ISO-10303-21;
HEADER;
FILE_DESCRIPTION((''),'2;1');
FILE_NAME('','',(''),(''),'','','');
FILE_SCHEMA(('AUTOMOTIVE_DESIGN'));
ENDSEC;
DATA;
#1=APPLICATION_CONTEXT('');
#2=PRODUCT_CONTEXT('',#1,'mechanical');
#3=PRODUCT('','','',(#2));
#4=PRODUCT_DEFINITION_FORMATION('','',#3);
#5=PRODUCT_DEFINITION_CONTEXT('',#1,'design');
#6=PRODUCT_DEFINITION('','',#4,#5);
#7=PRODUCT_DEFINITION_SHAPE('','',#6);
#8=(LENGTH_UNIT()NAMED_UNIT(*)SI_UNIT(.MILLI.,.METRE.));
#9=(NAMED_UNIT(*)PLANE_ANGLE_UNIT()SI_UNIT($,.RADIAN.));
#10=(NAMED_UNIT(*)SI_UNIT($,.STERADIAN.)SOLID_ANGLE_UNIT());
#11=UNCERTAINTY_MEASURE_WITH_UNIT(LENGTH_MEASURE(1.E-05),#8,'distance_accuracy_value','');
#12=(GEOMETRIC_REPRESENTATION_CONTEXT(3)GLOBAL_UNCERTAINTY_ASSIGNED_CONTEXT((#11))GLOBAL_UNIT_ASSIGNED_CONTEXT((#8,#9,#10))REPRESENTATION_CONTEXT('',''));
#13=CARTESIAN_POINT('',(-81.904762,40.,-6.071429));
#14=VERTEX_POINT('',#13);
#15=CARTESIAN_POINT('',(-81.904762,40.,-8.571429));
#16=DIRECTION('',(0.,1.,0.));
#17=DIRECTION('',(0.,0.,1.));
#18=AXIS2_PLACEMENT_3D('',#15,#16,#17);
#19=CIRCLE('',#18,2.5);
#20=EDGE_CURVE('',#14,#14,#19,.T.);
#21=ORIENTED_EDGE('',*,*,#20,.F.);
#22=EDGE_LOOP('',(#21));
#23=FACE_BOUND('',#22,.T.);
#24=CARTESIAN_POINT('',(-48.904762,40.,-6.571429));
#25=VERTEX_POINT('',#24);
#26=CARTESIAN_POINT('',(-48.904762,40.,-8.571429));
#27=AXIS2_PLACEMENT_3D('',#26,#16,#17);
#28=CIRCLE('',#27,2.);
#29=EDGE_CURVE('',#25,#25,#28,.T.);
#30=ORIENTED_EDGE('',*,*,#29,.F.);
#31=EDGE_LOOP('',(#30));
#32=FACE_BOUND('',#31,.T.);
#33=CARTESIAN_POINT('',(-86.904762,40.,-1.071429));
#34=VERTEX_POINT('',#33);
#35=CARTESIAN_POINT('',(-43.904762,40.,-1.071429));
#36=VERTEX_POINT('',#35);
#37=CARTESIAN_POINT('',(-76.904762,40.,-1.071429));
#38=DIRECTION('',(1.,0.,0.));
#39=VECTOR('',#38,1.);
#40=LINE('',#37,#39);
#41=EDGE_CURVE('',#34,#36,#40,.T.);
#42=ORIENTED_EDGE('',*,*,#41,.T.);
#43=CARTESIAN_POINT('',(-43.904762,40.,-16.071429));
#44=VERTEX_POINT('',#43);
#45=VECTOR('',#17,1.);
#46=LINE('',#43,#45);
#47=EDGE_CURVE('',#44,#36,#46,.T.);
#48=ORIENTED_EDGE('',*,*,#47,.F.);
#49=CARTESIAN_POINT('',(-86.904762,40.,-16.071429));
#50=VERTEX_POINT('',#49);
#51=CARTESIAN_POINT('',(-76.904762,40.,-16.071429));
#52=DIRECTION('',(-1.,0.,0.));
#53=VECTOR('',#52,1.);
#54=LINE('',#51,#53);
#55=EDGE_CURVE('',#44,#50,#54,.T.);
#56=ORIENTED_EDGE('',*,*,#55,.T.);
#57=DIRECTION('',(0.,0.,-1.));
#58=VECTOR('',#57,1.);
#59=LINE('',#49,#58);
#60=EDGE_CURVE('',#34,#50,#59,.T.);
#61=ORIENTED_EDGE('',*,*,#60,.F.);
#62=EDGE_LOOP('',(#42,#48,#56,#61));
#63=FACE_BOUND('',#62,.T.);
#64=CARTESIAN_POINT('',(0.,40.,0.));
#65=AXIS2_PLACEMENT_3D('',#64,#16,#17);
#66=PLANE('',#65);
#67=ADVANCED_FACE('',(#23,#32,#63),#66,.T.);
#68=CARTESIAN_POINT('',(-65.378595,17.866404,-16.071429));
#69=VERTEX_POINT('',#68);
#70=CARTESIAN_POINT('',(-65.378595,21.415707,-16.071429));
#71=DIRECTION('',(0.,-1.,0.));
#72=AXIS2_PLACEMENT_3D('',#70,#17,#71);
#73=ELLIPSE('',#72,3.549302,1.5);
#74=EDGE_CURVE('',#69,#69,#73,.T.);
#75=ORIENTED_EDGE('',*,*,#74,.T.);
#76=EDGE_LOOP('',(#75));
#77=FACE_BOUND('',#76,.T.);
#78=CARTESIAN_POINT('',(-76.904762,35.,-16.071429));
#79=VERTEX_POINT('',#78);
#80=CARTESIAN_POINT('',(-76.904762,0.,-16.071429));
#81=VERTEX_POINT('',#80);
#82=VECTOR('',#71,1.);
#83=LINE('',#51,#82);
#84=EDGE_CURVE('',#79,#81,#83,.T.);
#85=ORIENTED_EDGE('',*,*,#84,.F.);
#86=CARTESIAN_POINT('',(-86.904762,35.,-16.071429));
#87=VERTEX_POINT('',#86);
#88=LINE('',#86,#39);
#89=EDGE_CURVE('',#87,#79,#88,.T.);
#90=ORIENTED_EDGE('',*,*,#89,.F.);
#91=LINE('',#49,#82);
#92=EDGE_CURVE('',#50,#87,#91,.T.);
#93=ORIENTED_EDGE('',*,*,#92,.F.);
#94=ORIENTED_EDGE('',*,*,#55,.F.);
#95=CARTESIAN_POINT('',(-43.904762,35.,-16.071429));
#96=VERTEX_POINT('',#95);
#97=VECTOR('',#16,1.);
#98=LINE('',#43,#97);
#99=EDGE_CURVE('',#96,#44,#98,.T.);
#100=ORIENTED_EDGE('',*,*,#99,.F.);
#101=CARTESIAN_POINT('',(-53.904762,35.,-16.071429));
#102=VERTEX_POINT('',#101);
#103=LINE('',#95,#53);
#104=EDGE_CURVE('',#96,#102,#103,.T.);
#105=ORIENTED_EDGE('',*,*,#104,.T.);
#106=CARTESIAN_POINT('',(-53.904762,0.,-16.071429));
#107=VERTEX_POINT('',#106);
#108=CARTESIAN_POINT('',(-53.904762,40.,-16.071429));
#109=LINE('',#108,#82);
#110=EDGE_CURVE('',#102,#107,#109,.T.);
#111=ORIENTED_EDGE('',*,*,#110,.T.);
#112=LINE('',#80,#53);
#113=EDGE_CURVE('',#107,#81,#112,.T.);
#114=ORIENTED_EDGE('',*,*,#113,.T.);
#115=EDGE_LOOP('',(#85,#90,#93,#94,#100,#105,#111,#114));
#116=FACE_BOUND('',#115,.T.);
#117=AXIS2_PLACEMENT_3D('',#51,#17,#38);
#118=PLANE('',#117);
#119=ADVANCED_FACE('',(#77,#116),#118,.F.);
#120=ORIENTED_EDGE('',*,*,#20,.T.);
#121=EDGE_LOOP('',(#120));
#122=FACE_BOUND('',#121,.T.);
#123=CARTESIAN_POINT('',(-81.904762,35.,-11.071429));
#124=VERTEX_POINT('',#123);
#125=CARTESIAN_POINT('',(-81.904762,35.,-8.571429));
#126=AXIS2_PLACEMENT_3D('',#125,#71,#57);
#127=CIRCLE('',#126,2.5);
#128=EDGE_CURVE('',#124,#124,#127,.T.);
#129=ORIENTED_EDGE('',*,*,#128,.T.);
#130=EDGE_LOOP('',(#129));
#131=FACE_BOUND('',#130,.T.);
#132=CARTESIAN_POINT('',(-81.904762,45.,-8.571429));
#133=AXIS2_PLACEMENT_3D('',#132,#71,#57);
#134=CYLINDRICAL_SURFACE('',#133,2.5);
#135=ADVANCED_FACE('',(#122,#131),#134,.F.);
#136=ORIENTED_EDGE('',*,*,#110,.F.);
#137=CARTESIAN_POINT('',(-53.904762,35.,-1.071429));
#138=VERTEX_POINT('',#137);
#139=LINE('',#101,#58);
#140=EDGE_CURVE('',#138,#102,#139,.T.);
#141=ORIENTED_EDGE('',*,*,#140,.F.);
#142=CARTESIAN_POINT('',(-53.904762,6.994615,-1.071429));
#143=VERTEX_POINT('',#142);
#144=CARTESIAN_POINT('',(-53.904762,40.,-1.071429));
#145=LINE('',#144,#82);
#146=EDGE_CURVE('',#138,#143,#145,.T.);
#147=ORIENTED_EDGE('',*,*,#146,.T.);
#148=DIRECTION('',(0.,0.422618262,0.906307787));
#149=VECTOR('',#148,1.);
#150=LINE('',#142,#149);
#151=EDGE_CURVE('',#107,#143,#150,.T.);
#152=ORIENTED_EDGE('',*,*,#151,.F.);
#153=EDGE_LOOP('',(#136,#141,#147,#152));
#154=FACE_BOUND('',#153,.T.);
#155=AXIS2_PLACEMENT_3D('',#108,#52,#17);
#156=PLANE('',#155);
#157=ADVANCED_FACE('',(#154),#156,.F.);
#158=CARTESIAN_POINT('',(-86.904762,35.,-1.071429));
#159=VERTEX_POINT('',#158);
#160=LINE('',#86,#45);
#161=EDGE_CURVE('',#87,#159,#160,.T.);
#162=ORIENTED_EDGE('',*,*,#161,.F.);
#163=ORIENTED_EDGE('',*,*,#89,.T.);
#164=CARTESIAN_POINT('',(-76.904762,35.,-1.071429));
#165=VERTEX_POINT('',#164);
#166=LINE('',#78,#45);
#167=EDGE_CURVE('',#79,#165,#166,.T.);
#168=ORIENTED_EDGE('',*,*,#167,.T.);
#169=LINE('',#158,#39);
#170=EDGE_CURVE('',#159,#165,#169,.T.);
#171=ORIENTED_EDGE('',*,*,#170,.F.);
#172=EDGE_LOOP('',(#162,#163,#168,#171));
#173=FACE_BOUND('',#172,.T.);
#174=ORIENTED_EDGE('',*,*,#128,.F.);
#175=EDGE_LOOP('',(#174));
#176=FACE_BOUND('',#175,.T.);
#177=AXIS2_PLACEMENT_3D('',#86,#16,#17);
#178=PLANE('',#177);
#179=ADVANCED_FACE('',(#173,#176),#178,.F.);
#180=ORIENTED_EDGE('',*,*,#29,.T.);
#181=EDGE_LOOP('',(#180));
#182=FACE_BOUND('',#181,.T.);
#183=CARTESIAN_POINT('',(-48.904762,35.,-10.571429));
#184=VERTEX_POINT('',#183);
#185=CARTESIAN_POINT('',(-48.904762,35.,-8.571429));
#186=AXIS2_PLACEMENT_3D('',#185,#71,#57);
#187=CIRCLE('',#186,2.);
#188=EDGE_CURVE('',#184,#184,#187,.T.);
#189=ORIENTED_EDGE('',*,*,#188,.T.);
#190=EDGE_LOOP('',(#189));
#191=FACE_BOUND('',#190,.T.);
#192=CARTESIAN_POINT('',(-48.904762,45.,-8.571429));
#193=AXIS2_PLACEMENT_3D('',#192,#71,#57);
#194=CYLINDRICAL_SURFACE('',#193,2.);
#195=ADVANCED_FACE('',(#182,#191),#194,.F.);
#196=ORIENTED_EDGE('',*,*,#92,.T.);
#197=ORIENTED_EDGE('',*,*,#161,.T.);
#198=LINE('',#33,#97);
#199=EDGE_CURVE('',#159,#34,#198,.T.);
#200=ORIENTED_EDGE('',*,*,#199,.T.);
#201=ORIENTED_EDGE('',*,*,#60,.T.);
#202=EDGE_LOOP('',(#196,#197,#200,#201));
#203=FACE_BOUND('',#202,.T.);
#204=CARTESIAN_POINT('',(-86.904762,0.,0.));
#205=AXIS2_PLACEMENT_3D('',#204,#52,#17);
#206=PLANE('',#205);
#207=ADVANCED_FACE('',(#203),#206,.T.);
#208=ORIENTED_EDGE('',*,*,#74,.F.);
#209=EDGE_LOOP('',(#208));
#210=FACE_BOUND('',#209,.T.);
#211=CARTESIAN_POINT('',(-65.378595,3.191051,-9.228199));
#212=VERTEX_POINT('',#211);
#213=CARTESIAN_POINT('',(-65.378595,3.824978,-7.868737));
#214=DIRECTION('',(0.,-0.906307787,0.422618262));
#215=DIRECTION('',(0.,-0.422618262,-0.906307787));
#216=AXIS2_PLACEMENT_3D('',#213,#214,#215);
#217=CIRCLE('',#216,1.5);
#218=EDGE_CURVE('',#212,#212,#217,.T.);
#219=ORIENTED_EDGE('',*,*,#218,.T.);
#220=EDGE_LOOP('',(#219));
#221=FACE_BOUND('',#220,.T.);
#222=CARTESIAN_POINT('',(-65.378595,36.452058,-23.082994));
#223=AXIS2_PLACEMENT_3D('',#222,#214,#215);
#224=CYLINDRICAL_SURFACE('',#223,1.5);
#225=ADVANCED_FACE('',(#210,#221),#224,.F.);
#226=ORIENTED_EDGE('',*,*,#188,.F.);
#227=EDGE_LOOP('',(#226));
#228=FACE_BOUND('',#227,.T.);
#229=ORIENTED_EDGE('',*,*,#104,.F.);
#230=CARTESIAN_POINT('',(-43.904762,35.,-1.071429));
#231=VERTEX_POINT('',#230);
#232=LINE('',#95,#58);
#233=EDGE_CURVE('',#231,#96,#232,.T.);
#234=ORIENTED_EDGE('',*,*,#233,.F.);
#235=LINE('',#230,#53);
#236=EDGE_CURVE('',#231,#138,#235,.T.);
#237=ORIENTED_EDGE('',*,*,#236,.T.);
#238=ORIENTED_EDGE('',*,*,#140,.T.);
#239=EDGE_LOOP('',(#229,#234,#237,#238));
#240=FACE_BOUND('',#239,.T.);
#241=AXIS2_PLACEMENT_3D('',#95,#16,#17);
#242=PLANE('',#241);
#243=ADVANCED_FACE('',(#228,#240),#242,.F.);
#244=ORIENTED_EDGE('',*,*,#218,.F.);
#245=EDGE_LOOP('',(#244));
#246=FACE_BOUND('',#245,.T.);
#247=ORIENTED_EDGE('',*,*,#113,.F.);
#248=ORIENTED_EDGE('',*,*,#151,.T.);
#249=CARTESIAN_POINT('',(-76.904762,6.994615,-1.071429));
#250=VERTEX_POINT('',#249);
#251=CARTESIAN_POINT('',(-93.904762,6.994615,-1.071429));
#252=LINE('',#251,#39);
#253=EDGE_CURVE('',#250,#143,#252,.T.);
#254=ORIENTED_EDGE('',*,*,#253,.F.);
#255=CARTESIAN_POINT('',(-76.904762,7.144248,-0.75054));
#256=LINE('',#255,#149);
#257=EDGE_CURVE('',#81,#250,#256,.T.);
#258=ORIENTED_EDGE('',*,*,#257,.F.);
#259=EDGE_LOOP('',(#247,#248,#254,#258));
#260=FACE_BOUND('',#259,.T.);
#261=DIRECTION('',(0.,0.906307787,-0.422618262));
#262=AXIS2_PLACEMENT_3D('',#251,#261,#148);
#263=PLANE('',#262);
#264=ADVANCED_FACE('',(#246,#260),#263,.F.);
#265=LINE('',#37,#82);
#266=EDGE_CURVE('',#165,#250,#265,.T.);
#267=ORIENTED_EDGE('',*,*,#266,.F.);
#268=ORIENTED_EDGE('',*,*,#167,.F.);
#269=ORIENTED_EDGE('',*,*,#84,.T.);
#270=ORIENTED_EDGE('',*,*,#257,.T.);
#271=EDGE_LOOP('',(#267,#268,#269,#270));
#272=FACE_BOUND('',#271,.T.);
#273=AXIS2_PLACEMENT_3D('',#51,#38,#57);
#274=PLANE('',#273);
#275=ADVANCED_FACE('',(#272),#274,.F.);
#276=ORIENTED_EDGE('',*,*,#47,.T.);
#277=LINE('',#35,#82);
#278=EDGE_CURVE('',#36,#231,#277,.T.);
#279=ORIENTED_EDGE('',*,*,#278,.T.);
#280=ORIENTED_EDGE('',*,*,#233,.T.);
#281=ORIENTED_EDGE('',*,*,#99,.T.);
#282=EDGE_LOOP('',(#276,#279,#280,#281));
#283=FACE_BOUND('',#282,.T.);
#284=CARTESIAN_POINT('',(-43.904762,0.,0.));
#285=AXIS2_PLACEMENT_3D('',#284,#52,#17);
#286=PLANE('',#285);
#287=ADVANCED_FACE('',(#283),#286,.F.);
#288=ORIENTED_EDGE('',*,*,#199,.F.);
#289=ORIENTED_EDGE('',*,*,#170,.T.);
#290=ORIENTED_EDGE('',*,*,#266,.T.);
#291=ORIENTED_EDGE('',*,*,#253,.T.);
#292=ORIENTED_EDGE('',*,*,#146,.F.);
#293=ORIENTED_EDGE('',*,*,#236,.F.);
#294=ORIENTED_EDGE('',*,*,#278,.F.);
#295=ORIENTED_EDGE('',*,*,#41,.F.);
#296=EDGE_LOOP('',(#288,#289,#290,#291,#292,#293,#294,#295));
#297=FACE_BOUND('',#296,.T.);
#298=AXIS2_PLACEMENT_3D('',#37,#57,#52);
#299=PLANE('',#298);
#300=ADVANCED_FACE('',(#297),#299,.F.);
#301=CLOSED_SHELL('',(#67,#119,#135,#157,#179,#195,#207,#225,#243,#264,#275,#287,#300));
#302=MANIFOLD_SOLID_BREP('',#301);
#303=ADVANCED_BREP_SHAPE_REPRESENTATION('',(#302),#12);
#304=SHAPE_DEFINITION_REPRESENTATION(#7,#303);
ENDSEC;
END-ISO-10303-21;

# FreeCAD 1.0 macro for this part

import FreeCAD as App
import Part
import Sketcher

V = App.Vector
Q = App.Units.Quantity

doc = App.newDocument("Part")
params = doc.addObject("Spreadsheet::Sheet", "Params")
for row, (alias, value) in enumerate([
    ("sketch1_width", "23 mm"),
    ("sketch1_height", "15 mm"),
    ("pad1_length", "40 mm"),
    ("sketch2_height", "15 mm"),
    ("pocket1_length", "40 mm"),
    ("sketch3_diameter", "3 mm"),
    ("pocket2_length", "36 mm"),
    ("sketch4_width", "5 mm"),
    ("sketch4_height", "15 mm"),
    ("pad2_length", "10 mm"),
    ("sketch5_width", "5 mm"),
    ("sketch5_height", "15 mm"),
    ("pad3_length", "10 mm"),
    ("sketch6_diameter", "5 mm"),
    ("sketch6_diameter2", "4 mm"),
    ("pocket3_length", "10 mm"),
], start=1):
    params.set(f"A{row}", alias)
    params.set(f"B{row}", "=" + value)
    params.setAlias(f"B{row}", alias)

body = doc.addObject("PartDesign::Body", "Body")

# Sketch on XZ plane
sketch1 = body.newObject("Sketcher::SketchObject", "Sketch")
sketch1.AttachmentSupport = (doc.getObject("XZ_Plane"), [""])
sketch1.MapMode = "FlatFace"
sketch1.addGeometry([
    Part.LineSegment(V(-76.904762, -16.071429, 0), V(-76.904762, -1.071429, 0)),
    Part.LineSegment(V(-76.904762, -1.071429, 0), V(-53.904762, -1.071429, 0)),
    Part.LineSegment(V(-53.904762, -1.071429, 0), V(-53.904762, -16.071429, 0)),
    Part.LineSegment(V(-53.904762, -16.071429, 0), V(-76.904762, -16.071429, 0)),
], False)
sketch1.addConstraint([
    Sketcher.Constraint("Coincident", 0, 2, 1, 1),
    Sketcher.Constraint("Coincident", 1, 2, 2, 1),
    Sketcher.Constraint("Coincident", 2, 2, 3, 1),
    Sketcher.Constraint("Coincident", 3, 2, 0, 1),
    Sketcher.Constraint("Vertical", 0),
    Sketcher.Constraint("Horizontal", 1),
    Sketcher.Constraint("Vertical", 2),
    Sketcher.Constraint("Horizontal", 3),
    Sketcher.Constraint("DistanceX", 1, 1, 1, 2, Q("23 mm")),
    Sketcher.Constraint("DistanceY", 0, 1, 0, 2, Q("15 mm")),
    Sketcher.Constraint("DistanceX", 0, 2, -1, 1, Q("76.904762 mm")),
    Sketcher.Constraint("DistanceY", 0, 2, -1, 1, Q("1.071429 mm")),
])
sketch1.setExpression("Constraints[8]", "Params.sketch1_width")
sketch1.setExpression("Constraints[9]", "Params.sketch1_height")
pad1 = body.newObject("PartDesign::Pad", "Pad")
pad1.Profile = sketch1
pad1.setExpression("Length", "Params.pad1_length")
pad1.Reversed = True

# Sketch on YZ plane
sketch2 = body.newObject("Sketcher::SketchObject", "Sketch001")
sketch2.AttachmentSupport = (doc.getObject("YZ_Plane"), [""])
sketch2.MapMode = "FlatFace"
sketch2.AttachmentOffset = App.Placement(V(0, 0, -53.904762), App.Rotation())
sketch2.addGeometry([
    Part.LineSegment(V(0, -1.071429, 0), V(0, -16.071429, 0)),
    Part.LineSegment(V(0, -16.071429, 0), V(6.994615, -1.071429, 0)),
    Part.LineSegment(V(6.994615, -1.071429, 0), V(0, -1.071429, 0)),
], False)
sketch2.addConstraint([
    Sketcher.Constraint("Coincident", 0, 2, 1, 1),
    Sketcher.Constraint("Coincident", 1, 2, 2, 1),
    Sketcher.Constraint("Coincident", 2, 2, 0, 1),
    Sketcher.Constraint("Vertical", 0),
    Sketcher.Constraint("Horizontal", 2),
    Sketcher.Constraint("PointOnObject", 0, 2, -2),
    Sketcher.Constraint("DistanceY", 0, 2, 0, 1, Q("15 mm")),
    Sketcher.Constraint("Angle", 1, Q("65 deg")),
    Sketcher.Constraint("DistanceY", 0, 2, -1, 1, Q("16.071429 mm")),
])
sketch2.setExpression("Constraints[6]", "Params.sketch2_height")
pocket1 = body.newObject("PartDesign::Pocket", "Pocket")
pocket1.Profile = sketch2
pocket1.setExpression("Length", "Params.pocket1_length")

# Sketch on an angled plane
sketch3 = body.newObject("Sketcher::SketchObject", "Sketch002")
sketch3.Placement = App.Placement(V(0, 6.155714, -2.870457), App.Rotation(V(1, 0, 0), V(0, 0.422618262, 0.906307787), V(0, -0.906307787, 0.422618262), "ZXY"))
sketch3.addGeometry(Part.Circle(V(-65.378595, -5.514992, 0), V(0, 0, 1), 1.5), False)
sketch3.addConstraint([
    Sketcher.Constraint("Diameter", 0, Q("3 mm")),
    Sketcher.Constraint("DistanceX", 0, 3, -1, 1, Q("65.378595 mm")),
    Sketcher.Constraint("DistanceY", 0, 3, -1, 1, Q("5.514992 mm")),
])
sketch3.setExpression("Constraints[0]", "Params.sketch3_diameter")
pocket2 = body.newObject("PartDesign::Pocket", "Pocket001")
pocket2.Profile = sketch3
pocket2.setExpression("Length", "Params.pocket2_length")

# Sketch on YZ plane
sketch4 = body.newObject("Sketcher::SketchObject", "Sketch003")
sketch4.AttachmentSupport = (doc.getObject("YZ_Plane"), [""])
sketch4.MapMode = "FlatFace"
sketch4.AttachmentOffset = App.Placement(V(0, 0, -53.904762), App.Rotation())
sketch4.addGeometry([
    Part.LineSegment(V(40, -1.071429, 0), V(35, -1.071429, 0)),
    Part.LineSegment(V(35, -1.071429, 0), V(35, -16.071429, 0)),
    Part.LineSegment(V(35, -16.071429, 0), V(40, -16.071429, 0)),
    Part.LineSegment(V(40, -16.071429, 0), V(40, -1.071429, 0)),
], False)
sketch4.addConstraint([
    Sketcher.Constraint("Coincident", 0, 2, 1, 1),
    Sketcher.Constraint("Coincident", 1, 2, 2, 1),
    Sketcher.Constraint("Coincident", 2, 2, 3, 1),
    Sketcher.Constraint("Coincident", 3, 2, 0, 1),
    Sketcher.Constraint("Horizontal", 0),
    Sketcher.Constraint("Vertical", 1),
    Sketcher.Constraint("Horizontal", 2),
    Sketcher.Constraint("Vertical", 3),
    Sketcher.Constraint("DistanceX", 0, 2, 0, 1, Q("5 mm")),
    Sketcher.Constraint("DistanceY", 1, 2, 1, 1, Q("15 mm")),
    Sketcher.Constraint("DistanceX", -1, 1, 0, 2, Q("35 mm")),
    Sketcher.Constraint("DistanceY", 0, 2, -1, 1, Q("1.071429 mm")),
])
sketch4.setExpression("Constraints[8]", "Params.sketch4_width")
sketch4.setExpression("Constraints[9]", "Params.sketch4_height")
pad2 = body.newObject("PartDesign::Pad", "Pad001")
pad2.Profile = sketch4
pad2.setExpression("Length", "Params.pad2_length")

# Sketch on YZ plane
sketch5 = body.newObject("Sketcher::SketchObject", "Sketch004")
sketch5.AttachmentSupport = (doc.getObject("YZ_Plane"), [""])
sketch5.MapMode = "FlatFace"
sketch5.AttachmentOffset = App.Placement(V(0, 0, -76.904762), App.Rotation())
sketch5.addGeometry([
    Part.LineSegment(V(40, -16.071429, 0), V(35, -16.071429, 0)),
    Part.LineSegment(V(35, -16.071429, 0), V(35, -1.071429, 0)),
    Part.LineSegment(V(35, -1.071429, 0), V(40, -1.071429, 0)),
    Part.LineSegment(V(40, -1.071429, 0), V(40, -16.071429, 0)),
], False)
sketch5.addConstraint([
    Sketcher.Constraint("Coincident", 0, 2, 1, 1),
    Sketcher.Constraint("Coincident", 1, 2, 2, 1),
    Sketcher.Constraint("Coincident", 2, 2, 3, 1),
    Sketcher.Constraint("Coincident", 3, 2, 0, 1),
    Sketcher.Constraint("Horizontal", 0),
    Sketcher.Constraint("Vertical", 1),
    Sketcher.Constraint("Horizontal", 2),
    Sketcher.Constraint("Vertical", 3),
    Sketcher.Constraint("DistanceX", 0, 2, 0, 1, Q("5 mm")),
    Sketcher.Constraint("DistanceY", 1, 1, 1, 2, Q("15 mm")),
    Sketcher.Constraint("DistanceX", -1, 1, 0, 2, Q("35 mm")),
    Sketcher.Constraint("DistanceY", 0, 2, -1, 1, Q("16.071429 mm")),
])
sketch5.setExpression("Constraints[8]", "Params.sketch5_width")
sketch5.setExpression("Constraints[9]", "Params.sketch5_height")
pad3 = body.newObject("PartDesign::Pad", "Pad002")
pad3.Profile = sketch5
pad3.setExpression("Length", "Params.pad3_length")
pad3.Reversed = True

# Sketch on XZ plane
sketch6 = body.newObject("Sketcher::SketchObject", "Sketch005")
sketch6.AttachmentSupport = (doc.getObject("XZ_Plane"), [""])
sketch6.MapMode = "FlatFace"
sketch6.AttachmentOffset = App.Placement(V(0, 0, -35), App.Rotation())
sketch6.addGeometry([
    Part.Circle(V(-81.904762, -8.571429, 0), V(0, 0, 1), 2.5),
    Part.Circle(V(-48.904762, -8.571429, 0), V(0, 0, 1), 2),
], False)
sketch6.addConstraint([
    Sketcher.Constraint("Horizontal", 0, 3, 1, 3),
    Sketcher.Constraint("Diameter", 0, Q("5 mm")),
    Sketcher.Constraint("Diameter", 1, Q("4 mm")),
    Sketcher.Constraint("DistanceX", 0, 3, 1, 3, Q("33 mm")),
    Sketcher.Constraint("DistanceX", 0, 3, -1, 1, Q("81.904762 mm")),
    Sketcher.Constraint("DistanceY", 0, 3, -1, 1, Q("8.571429 mm")),
])
sketch6.setExpression("Constraints[1]", "Params.sketch6_diameter")
sketch6.setExpression("Constraints[2]", "Params.sketch6_diameter2")
pocket3 = body.newObject("PartDesign::Pocket", "Pocket002")
pocket3.Profile = sketch6
pocket3.setExpression("Length", "Params.pocket3_length")

doc.recompute()
